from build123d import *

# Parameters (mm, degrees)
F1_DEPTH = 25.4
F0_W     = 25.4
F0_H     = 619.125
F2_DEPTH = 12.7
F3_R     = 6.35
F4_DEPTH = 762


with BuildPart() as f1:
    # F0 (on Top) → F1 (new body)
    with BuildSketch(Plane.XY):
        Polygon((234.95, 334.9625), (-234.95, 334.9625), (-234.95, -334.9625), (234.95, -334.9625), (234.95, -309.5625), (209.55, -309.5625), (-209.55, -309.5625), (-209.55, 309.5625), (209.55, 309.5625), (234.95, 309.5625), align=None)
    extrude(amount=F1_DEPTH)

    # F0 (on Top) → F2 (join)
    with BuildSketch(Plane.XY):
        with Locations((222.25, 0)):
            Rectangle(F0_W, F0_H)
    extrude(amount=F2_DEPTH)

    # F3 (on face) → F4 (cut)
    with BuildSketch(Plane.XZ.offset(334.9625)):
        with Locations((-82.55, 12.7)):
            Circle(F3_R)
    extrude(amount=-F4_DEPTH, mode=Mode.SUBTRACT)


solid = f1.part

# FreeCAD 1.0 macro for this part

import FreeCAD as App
import Part
import Sketcher

V = App.Vector
Q = App.Units.Quantity


def add_polygon(sketch, points):
    """Adds a closed chain of lines whose ends are joined by coincident constraints."""
    first, n = sketch.GeometryCount, len(points)
    for a, b in zip(points, points[1:] + points[:1]):
        sketch.addGeometry(Part.LineSegment(App.Vector(*a, 0), App.Vector(*b, 0)), False)
    for i in range(n):
        sketch.addConstraint(Sketcher.Constraint("Coincident", first + i, 2, first + (i + 1) % n, 1))

doc = App.newDocument("Part")
params = doc.addObject("Spreadsheet::Sheet", "Params")
for row, (alias, value) in enumerate([
    ("sketch1_height", "1 in"),
    ("sketch1_width", "18.5 in"),
    ("sketch1_width2", "17.5 in"),
    ("sketch1_height2", "26.375 in"),
    ("pad1_length", "1 in"),
    ("sketch2_width", "1 in"),
    ("sketch2_height", "24.375 in"),
    ("pad2_length", "0.5 in"),
    ("sketch3_diameter", "0.5 in"),
    ("pocket1_length", "30 in"),
], start=1):
    params.set(f"A{row}", alias)
    params.set(f"B{row}", "=" + value)
    params.setAlias(f"B{row}", alias)

body = doc.addObject("PartDesign::Body", "Body")

# Sketch on XY plane
sketch1 = doc.addObject("Sketcher::SketchObject", "Sketch")
body.addObject(sketch1)
sketch1.AttachmentSupport = (doc.XY_Plane, [""])
sketch1.MapMode = "FlatFace"
add_polygon(sketch1, [(235, 335), (-235, 335), (-235, -335), (235, -335), (235, -310), (-210, -310), (-210, 310), (235, 310)])  # lines 0-7
sketch1.addConstraint([
    Sketcher.Constraint("Horizontal", 0),
    Sketcher.Constraint("Vertical", 1),
    Sketcher.Constraint("Horizontal", 2),
    Sketcher.Constraint("Vertical", 3),
    Sketcher.Constraint("Horizontal", 4),
    Sketcher.Constraint("Vertical", 5),
    Sketcher.Constraint("Horizontal", 6),
    Sketcher.Constraint("Vertical", 7),
    Sketcher.Constraint("Symmetric", 0, 2, 2, 2, -1, 1),
    Sketcher.Constraint("Symmetric", 3, 2, 6, 2, -1),
    Sketcher.Constraint("DistanceY", 3, 1, 3, 2, Q("1 in")),
    Sketcher.Constraint("DistanceX", 0, 2, 0, 1, Q("18.5 in")),
    Sketcher.Constraint("DistanceX", 4, 2, 4, 1, Q("17.5 in")),
    Sketcher.Constraint("DistanceY", 1, 2, 1, 1, Q("26.375 in")),
])
sketch1.setExpression("Constraints[18]", "Params.sketch1_height")
sketch1.setExpression("Constraints[19]", "Params.sketch1_width")
sketch1.setExpression("Constraints[20]", "Params.sketch1_width2")
sketch1.setExpression("Constraints[21]", "Params.sketch1_height2")
pad1 = doc.addObject("PartDesign::Pad", "Pad")
body.addObject(pad1)
pad1.Profile = sketch1
pad1.setExpression("Length", "Params.pad1_length")

# Sketch on XY plane
sketch2 = doc.addObject("Sketcher::SketchObject", "Sketch001")
body.addObject(sketch2)
sketch2.AttachmentSupport = (doc.XY_Plane, [""])
sketch2.MapMode = "FlatFace"
add_polygon(sketch2, [(210, 310), (210, -310), (235, -310), (235, 310)])  # lines 0-3
sketch2.addConstraint([
    Sketcher.Constraint("Vertical", 0),
    Sketcher.Constraint("Horizontal", 1),
    Sketcher.Constraint("Vertical", 2),
    Sketcher.Constraint("Horizontal", 3),
    Sketcher.Constraint("DistanceX", 1, 1, 1, 2, Q("1 in")),
    Sketcher.Constraint("DistanceY", 0, 2, 0, 1, Q("24.375 in")),
    Sketcher.Constraint("DistanceX", -1, 1, 0, 2, Q("8.25 in")),
    Sketcher.Constraint("DistanceY", 0, 2, -1, 1, Q("12.1875 in")),
])
sketch2.setExpression("Constraints[8]", "Params.sketch2_width")
sketch2.setExpression("Constraints[9]", "Params.sketch2_height")
pad2 = doc.addObject("PartDesign::Pad", "Pad001")
body.addObject(pad2)
pad2.Profile = sketch2
pad2.setExpression("Length", "Params.pad2_length")

# Sketch on XZ plane
sketch3 = doc.addObject("Sketcher::SketchObject", "Sketch002")
body.addObject(sketch3)
sketch3.AttachmentSupport = (doc.XZ_Plane, [""])
sketch3.MapMode = "FlatFace"
sketch3.AttachmentOffset = App.Placement(V(0, 0, 13.1875 * 25.4), App.Rotation())
sketch3.addGeometry(Part.Circle(V(-83, 13, 0), V(0, 0, 1), 6), False)
sketch3.addConstraint([
    Sketcher.Constraint("Diameter", 0, Q("0.5 in")),
    Sketcher.Constraint("DistanceY", -1, 1, 0, 3, Q("0.5 in")),
    Sketcher.Constraint("DistanceX", 0, 3, -1, 1, Q("3.25 in")),
])
sketch3.setExpression("Constraints[0]", "Params.sketch3_diameter")
pocket1 = doc.addObject("PartDesign::Pocket", "Pocket")
body.addObject(pocket1)
pocket1.Profile = sketch3
pocket1.setExpression("Length", "Params.pocket1_length")

doc.recompute()
